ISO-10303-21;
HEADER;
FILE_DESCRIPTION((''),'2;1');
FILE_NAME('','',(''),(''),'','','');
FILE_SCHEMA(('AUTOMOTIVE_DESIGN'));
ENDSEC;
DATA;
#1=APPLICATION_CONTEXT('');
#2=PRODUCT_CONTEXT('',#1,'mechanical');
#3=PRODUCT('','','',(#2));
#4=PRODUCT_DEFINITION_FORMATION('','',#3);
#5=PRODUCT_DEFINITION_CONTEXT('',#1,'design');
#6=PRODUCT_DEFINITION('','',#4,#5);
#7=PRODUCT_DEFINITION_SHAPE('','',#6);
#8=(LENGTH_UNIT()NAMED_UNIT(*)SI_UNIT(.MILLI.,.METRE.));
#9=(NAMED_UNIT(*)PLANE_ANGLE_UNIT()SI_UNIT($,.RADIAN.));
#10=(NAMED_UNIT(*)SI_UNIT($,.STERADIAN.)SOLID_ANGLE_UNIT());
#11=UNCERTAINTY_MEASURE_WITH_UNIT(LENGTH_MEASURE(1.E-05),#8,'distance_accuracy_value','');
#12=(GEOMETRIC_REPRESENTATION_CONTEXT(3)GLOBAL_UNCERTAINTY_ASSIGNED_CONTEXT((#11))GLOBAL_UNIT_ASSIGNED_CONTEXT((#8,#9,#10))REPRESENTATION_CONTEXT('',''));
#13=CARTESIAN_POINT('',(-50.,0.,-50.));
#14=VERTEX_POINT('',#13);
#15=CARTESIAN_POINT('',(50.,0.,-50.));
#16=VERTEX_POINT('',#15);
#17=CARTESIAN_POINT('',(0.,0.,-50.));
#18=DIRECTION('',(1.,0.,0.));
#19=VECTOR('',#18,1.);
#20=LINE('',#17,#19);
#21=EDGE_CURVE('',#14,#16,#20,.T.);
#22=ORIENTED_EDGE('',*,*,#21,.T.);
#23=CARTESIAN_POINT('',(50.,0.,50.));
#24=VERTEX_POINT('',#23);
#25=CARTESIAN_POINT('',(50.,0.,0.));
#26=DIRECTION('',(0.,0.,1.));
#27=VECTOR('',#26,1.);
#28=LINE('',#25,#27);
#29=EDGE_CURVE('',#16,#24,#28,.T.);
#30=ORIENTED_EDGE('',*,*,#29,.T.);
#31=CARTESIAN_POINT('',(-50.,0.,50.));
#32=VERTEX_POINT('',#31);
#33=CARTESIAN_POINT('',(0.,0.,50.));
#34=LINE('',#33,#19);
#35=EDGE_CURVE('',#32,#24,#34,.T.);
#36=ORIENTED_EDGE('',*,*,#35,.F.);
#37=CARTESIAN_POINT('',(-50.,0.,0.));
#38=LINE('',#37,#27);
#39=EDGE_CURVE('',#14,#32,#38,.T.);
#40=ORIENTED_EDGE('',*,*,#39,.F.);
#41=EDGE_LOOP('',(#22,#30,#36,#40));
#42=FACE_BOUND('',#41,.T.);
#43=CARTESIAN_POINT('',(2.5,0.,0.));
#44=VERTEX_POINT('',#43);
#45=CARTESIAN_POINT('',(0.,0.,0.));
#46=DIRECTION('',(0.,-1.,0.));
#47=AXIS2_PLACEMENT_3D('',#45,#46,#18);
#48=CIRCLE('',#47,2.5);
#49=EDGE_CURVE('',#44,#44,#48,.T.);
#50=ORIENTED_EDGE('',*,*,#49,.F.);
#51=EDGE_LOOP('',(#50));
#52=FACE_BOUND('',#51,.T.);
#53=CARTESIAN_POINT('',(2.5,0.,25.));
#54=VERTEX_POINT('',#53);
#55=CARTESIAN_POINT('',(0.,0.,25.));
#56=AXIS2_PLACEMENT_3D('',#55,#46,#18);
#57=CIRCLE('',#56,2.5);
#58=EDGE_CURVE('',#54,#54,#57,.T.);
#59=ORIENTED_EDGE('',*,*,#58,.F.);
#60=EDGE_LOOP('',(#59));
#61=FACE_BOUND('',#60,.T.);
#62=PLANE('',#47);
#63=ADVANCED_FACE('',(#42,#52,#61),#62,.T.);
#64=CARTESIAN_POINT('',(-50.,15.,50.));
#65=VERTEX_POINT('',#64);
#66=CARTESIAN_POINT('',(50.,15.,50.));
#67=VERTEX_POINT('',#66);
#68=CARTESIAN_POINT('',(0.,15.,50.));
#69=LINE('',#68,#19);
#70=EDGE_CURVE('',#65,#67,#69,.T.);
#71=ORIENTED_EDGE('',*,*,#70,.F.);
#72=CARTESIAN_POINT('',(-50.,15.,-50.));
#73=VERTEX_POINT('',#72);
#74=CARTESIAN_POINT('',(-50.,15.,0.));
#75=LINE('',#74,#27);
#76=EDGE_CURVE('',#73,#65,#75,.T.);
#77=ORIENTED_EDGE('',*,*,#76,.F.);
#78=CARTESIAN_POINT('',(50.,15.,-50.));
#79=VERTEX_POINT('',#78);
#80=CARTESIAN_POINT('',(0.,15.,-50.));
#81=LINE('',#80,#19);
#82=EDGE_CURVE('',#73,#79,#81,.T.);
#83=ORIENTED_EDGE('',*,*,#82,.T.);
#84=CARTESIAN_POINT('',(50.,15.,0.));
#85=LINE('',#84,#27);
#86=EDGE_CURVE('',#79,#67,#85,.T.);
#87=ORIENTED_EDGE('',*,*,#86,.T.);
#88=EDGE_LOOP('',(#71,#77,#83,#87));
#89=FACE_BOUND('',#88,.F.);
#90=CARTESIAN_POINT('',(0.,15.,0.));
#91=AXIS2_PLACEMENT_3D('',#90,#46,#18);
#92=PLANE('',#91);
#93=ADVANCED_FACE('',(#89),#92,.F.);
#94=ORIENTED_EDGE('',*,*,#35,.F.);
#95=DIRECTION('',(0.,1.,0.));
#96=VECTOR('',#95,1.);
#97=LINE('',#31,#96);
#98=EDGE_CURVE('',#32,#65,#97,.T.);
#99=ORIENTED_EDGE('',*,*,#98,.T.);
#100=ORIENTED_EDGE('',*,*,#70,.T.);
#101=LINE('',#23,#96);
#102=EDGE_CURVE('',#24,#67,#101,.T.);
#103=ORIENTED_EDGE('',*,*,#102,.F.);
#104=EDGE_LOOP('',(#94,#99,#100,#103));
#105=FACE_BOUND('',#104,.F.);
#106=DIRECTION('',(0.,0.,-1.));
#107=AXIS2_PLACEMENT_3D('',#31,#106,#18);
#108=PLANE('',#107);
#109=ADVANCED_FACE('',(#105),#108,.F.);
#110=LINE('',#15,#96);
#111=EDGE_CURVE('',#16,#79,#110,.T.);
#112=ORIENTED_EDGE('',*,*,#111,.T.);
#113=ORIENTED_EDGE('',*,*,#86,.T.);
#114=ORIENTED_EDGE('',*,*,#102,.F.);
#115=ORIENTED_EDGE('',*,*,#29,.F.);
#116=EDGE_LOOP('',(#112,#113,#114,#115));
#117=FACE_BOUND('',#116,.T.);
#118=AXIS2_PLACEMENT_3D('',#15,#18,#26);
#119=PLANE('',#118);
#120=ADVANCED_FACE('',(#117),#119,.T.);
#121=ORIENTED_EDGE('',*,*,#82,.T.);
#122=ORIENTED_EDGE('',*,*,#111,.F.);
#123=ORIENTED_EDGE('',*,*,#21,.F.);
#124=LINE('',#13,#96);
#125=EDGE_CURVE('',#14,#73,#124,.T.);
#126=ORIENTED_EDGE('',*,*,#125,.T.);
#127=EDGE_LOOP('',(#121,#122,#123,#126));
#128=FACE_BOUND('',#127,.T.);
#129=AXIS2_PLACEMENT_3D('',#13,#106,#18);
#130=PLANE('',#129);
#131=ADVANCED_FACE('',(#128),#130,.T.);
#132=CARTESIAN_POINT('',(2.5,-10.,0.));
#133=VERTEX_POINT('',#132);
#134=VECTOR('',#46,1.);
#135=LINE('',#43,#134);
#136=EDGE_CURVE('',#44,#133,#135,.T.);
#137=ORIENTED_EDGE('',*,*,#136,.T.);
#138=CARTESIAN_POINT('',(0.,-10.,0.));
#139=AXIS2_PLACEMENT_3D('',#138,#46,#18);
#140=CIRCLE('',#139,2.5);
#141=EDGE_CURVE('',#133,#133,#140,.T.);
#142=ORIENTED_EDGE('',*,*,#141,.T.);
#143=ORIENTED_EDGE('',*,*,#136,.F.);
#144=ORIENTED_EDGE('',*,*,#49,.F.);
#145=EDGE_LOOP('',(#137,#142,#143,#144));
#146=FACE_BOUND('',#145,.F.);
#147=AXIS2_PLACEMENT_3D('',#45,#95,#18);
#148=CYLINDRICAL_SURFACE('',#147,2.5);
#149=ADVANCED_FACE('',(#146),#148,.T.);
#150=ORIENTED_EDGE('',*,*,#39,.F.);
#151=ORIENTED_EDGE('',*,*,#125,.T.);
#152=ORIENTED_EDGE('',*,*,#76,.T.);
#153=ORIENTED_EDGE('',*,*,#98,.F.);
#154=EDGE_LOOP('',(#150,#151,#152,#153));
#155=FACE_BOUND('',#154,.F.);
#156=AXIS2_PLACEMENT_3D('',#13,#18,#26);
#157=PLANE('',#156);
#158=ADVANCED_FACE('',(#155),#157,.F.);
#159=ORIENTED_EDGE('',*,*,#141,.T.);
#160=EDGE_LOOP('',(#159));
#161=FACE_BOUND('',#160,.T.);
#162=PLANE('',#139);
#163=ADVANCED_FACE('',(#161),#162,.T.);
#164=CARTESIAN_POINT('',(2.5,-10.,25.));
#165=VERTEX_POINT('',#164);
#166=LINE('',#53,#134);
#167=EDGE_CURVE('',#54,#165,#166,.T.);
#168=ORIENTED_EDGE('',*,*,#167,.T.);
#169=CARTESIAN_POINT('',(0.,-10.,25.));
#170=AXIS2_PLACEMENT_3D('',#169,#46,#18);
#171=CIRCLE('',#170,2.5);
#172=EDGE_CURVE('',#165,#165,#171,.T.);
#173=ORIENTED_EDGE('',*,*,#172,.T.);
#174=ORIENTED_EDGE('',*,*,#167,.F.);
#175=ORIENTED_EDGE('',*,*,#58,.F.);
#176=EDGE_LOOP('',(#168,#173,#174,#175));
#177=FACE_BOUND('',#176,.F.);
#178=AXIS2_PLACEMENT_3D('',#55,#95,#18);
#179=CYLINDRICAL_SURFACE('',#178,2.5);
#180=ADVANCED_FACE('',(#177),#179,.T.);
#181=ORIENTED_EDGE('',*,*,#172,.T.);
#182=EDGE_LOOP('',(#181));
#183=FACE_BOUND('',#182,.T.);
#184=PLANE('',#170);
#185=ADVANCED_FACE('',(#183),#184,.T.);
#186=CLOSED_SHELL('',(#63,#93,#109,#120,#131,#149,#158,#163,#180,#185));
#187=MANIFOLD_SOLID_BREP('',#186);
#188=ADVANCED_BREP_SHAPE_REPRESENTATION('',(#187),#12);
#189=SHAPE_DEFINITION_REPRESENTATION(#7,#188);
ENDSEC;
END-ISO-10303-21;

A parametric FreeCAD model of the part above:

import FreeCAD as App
import Part
import Sketcher

V = App.Vector


def add_polygon(sketch, points):
    """Adds a closed chain of lines whose ends are joined by coincident constraints."""
    first, n = sketch.GeometryCount, len(points)
    for a, b in zip(points, points[1:] + points[:1]):
        sketch.addGeometry(Part.LineSegment(App.Vector(*a, 0), App.Vector(*b, 0)), False)
    for i in range(n):
        sketch.addConstraint(Sketcher.Constraint("Coincident", first + i, 2, first + (i + 1) % n, 1))

doc = App.newDocument("Part")
body = doc.addObject("PartDesign::Body", "Body")

# Sketch on XZ plane
sketch1 = body.newObject("Sketcher::SketchObject", "Sketch")
sketch1.AttachmentSupport = (doc.getObject("XZ_Plane"), [""])
sketch1.MapMode = "FlatFace"
add_polygon(sketch1, [(-50, 50), (-50, -50), (50, -50), (50, 50)])  # lines 0-3
sketch1.addConstraint([
    Sketcher.Constraint("Vertical", 0),
    Sketcher.Constraint("Horizontal", 1),
    Sketcher.Constraint("Vertical", 2),
    Sketcher.Constraint("Horizontal", 3),
    Sketcher.Constraint("Symmetric", 0, 2, 2, 2, -1, 1),
    Sketcher.Constraint("Equal", 3, 0),
    Sketcher.Constraint("DistanceX", 1, 1, 1, 2, 100.0),
])
pad1 = body.newObject("PartDesign::Pad", "Pad")
pad1.Profile = sketch1
pad1.Length = 15
pad1.Reversed = True

# Sketch on XZ plane
sketch2 = body.newObject("Sketcher::SketchObject", "Sketch001")
sketch2.AttachmentSupport = (doc.getObject("XZ_Plane"), [""])
sketch2.MapMode = "FlatFace"
sketch2.addGeometry([
    Part.Circle(V(0, 0, 0), V(0, 0, 1), 2.5),
    Part.Circle(V(0, 25, 0), V(0, 0, 1), 2.5),
], False)
sketch2.addConstraint([
    Sketcher.Constraint("Coincident", 0, 3, -1, 1),
    Sketcher.Constraint("Equal", 0, 1),
    Sketcher.Constraint("PointOnObject", 1, 3, -2),
    Sketcher.Constraint("Diameter", 0, 5.0),
    Sketcher.Constraint("DistanceY", -1, 1, 1, 3, 25.0),
])
pad2 = body.newObject("PartDesign::Pad", "Pad001")
pad2.Profile = sketch2
pad2.Length = 10

doc.recompute()
